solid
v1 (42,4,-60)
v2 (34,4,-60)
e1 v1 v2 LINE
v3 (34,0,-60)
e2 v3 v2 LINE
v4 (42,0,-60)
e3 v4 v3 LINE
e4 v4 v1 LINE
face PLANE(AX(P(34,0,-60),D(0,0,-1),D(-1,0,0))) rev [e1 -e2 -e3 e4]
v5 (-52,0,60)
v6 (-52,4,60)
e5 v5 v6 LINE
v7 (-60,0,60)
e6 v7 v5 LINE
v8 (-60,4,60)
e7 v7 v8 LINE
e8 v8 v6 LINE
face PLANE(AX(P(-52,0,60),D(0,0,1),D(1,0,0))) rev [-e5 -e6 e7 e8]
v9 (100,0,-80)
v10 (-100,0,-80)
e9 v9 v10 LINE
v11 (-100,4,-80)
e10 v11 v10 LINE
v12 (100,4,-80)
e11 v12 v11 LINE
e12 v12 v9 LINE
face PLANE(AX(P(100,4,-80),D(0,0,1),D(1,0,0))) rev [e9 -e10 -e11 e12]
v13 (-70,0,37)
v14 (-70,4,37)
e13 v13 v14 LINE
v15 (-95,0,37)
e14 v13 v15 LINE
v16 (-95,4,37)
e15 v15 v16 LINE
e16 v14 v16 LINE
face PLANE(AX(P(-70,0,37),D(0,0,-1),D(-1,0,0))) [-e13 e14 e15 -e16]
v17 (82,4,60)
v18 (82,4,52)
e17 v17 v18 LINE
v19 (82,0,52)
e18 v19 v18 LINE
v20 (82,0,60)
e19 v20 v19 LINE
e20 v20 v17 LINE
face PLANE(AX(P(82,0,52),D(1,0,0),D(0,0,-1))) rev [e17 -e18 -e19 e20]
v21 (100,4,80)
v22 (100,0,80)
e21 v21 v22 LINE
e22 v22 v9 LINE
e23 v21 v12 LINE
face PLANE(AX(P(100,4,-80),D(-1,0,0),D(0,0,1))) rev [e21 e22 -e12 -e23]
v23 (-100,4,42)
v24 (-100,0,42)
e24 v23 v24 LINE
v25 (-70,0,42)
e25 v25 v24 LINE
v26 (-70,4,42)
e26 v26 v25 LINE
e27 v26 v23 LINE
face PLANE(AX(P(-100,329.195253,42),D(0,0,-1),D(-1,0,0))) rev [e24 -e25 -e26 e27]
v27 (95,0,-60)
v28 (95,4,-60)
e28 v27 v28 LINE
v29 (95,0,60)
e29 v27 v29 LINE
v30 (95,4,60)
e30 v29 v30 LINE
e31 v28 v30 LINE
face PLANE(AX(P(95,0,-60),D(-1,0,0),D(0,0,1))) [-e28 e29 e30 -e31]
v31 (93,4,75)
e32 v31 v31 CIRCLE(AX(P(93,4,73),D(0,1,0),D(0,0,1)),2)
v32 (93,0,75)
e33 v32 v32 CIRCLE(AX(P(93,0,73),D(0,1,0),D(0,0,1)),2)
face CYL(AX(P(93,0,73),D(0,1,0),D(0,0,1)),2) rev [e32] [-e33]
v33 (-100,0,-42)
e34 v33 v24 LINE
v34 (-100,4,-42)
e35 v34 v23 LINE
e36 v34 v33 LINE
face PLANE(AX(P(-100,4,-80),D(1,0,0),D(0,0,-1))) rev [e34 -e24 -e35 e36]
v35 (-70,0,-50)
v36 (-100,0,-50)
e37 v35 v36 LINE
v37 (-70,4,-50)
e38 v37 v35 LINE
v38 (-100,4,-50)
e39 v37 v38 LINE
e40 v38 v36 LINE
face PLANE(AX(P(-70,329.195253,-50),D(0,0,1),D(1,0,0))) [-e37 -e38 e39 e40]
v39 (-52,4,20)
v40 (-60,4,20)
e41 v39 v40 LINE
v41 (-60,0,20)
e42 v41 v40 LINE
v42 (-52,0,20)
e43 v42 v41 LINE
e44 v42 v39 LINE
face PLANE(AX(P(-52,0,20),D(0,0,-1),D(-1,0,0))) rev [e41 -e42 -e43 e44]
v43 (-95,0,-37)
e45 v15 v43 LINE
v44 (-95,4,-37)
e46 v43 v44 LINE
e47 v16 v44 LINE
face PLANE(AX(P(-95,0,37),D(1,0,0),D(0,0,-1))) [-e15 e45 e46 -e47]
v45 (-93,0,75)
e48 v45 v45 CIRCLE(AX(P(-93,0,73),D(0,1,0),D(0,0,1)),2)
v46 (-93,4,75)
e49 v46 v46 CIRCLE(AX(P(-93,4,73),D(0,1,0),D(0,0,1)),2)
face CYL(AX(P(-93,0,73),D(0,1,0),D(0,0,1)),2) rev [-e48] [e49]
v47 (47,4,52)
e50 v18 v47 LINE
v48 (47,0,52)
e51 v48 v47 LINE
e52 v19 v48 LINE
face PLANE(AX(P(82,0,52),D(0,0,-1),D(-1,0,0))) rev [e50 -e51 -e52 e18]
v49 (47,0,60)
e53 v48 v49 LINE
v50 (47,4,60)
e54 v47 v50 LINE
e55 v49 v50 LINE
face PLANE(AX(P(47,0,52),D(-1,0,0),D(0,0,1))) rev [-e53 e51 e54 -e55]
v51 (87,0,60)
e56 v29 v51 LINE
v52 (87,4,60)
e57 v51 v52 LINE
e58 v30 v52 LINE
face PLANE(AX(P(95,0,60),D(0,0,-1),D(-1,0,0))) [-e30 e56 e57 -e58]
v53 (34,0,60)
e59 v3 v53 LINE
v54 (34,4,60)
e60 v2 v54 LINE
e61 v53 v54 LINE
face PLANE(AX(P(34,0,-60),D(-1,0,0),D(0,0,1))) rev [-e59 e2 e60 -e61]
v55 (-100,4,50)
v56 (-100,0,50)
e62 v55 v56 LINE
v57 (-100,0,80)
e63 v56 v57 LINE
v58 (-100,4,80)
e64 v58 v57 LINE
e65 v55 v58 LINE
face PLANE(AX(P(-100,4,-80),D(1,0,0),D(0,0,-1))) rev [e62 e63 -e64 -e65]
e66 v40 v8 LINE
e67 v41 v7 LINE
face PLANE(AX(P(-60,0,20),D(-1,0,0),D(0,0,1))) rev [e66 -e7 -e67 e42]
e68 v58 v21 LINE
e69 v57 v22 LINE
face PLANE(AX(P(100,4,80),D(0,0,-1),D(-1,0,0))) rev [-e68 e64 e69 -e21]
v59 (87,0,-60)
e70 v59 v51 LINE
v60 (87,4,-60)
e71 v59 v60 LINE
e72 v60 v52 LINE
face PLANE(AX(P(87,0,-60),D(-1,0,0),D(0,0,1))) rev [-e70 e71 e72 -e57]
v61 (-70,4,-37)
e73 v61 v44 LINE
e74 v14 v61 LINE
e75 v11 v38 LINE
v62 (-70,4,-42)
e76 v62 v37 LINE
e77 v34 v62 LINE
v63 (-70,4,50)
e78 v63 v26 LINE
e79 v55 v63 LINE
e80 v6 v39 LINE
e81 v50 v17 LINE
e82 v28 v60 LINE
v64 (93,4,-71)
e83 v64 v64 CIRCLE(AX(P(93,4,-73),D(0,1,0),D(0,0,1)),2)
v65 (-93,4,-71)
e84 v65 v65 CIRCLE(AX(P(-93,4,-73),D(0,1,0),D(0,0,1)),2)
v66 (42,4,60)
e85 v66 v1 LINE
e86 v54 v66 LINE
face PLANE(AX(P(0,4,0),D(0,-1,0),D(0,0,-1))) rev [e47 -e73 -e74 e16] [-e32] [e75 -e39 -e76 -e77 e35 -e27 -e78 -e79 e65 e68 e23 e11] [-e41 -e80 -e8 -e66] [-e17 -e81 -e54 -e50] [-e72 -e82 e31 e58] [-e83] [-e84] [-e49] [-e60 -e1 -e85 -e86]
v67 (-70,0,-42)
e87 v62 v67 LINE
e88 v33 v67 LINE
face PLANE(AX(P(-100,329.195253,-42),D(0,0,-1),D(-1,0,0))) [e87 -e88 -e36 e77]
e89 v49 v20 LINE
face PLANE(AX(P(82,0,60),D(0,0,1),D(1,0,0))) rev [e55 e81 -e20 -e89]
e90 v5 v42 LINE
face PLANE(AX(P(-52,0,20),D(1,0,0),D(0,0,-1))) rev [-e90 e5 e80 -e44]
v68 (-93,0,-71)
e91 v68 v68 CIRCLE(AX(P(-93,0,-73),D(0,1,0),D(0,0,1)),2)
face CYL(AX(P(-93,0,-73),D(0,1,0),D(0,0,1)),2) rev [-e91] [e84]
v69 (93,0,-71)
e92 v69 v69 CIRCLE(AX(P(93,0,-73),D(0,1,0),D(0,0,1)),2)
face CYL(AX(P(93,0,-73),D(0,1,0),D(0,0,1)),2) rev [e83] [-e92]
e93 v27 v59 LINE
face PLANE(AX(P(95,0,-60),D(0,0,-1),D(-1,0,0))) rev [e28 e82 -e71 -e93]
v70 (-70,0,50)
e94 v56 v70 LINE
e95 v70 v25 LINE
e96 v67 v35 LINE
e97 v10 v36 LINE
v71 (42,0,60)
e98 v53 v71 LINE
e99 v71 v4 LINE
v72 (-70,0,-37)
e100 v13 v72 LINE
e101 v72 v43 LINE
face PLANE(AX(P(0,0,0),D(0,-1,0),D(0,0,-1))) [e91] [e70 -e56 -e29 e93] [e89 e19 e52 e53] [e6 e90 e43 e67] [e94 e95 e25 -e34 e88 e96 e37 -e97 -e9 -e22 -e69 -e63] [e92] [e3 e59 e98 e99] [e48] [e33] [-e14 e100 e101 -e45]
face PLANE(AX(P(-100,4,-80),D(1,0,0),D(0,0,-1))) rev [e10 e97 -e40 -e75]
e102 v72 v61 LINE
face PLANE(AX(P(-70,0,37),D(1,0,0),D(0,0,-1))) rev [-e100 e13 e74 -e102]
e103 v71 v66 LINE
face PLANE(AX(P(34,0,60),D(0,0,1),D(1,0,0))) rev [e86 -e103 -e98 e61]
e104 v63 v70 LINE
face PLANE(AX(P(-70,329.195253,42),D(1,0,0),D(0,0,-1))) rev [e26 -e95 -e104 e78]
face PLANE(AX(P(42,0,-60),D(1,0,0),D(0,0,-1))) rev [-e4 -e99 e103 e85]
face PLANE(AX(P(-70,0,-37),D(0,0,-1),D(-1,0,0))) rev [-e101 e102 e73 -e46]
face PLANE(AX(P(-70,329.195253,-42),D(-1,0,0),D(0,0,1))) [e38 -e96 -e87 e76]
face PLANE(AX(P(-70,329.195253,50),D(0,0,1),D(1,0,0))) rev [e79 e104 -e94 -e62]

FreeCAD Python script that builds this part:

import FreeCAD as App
import Part
import Sketcher

V = App.Vector


def add_polygon(sketch, points):
    """Adds a closed chain of lines whose ends are joined by coincident constraints."""
    first, n = sketch.GeometryCount, len(points)
    for a, b in zip(points, points[1:] + points[:1]):
        sketch.addGeometry(Part.LineSegment(App.Vector(*a, 0), App.Vector(*b, 0)), False)
    for i in range(n):
        sketch.addConstraint(Sketcher.Constraint("Coincident", first + i, 2, first + (i + 1) % n, 1))

doc = App.newDocument("Part")
body = doc.addObject("PartDesign::Body", "Body")

# Sketch on XZ plane
sketch1 = body.newObject("Sketcher::SketchObject", "Sketch")
sketch1.AttachmentSupport = (doc.getObject("XZ_Plane"), [""])
sketch1.MapMode = "FlatFace"
add_polygon(sketch1, [(-100, -80), (-100, 80), (100, 80), (100, -80)])  # lines 0-3
sketch1.addConstraint(Sketcher.Constraint("Vertical", 0))
sketch1.addConstraint(Sketcher.Constraint("Horizontal", 1))
sketch1.addConstraint(Sketcher.Constraint("Vertical", 2))
sketch1.addConstraint(Sketcher.Constraint("Horizontal", 3))
sketch1.addConstraint(Sketcher.Constraint("Symmetric", 0, 2, 2, 2, -1, 1))
sketch1.addConstraint(Sketcher.Constraint("DistanceX", 1, 1, 1, 2, 200.0))
sketch1.addConstraint(Sketcher.Constraint("DistanceY", 0, 1, 0, 2, 160.0))
pad1 = body.newObject("PartDesign::Pad", "Pad")
pad1.Profile = sketch1
pad1.Length = 4
pad1.Reversed = True

# Sketch on XZ plane
sketch2 = body.newObject("Sketcher::SketchObject", "Sketch001")
sketch2.AttachmentSupport = (doc.getObject("XZ_Plane"), [""])
sketch2.MapMode = "FlatFace"
sketch2.AttachmentOffset = App.Placement(V(0, 0, -4), App.Rotation())
sketch2.addGeometry(Part.Circle(V(-93, -73, 0), V(0, 0, 1), 2), False)
sketch2.addGeometry(Part.Circle(V(93, -73, 0), V(0, 0, 1), 2), False)
sketch2.addGeometry(Part.Circle(V(-93, 73, 0), V(0, 0, 1), 2), False)
sketch2.addGeometry(Part.Circle(V(93, 73, 0), V(0, 0, 1), 2), False)
sketch2.addConstraint(Sketcher.Constraint("Equal", 0, 1))
sketch2.addConstraint(Sketcher.Constraint("Equal", 1, 2))
sketch2.addConstraint(Sketcher.Constraint("Equal", 2, 3))
sketch2.addConstraint(Sketcher.Constraint("Symmetric", 1, 3, 2, 3, -1, 1))
sketch2.addConstraint(Sketcher.Constraint("Symmetric", 0, 3, 3, 3, -1, 1))
sketch2.addConstraint(Sketcher.Constraint("Symmetric", 0, 3, 1, 3, -2))
sketch2.addConstraint(Sketcher.Constraint("Diameter", 0, 4.0))
sketch2.addConstraint(Sketcher.Constraint("DistanceX", 0, 3, -1, 1, 93.0))
sketch2.addConstraint(Sketcher.Constraint("DistanceY", 0, 3, -1, 1, 73.0))
pocket1 = body.newObject("PartDesign::Pocket", "Pocket")
pocket1.Profile = sketch2
pocket1.Type = "ThroughAll"
pocket1.Reversed = True

# Sketch on XZ plane
sketch3 = body.newObject("Sketcher::SketchObject", "Sketch002")
sketch3.AttachmentSupport = (doc.getObject("XZ_Plane"), [""])
sketch3.MapMode = "FlatFace"
sketch3.AttachmentOffset = App.Placement(V(0, 0, -4), App.Rotation())
add_polygon(sketch3, [(-100, -50), (-100, -42), (-70, -42), (-70, -50)])  # lines 0-3
sketch3.addConstraint(Sketcher.Constraint("Vertical", 0))
sketch3.addConstraint(Sketcher.Constraint("Horizontal", 1))
sketch3.addConstraint(Sketcher.Constraint("Vertical", 2))
sketch3.addConstraint(Sketcher.Constraint("Horizontal", 3))
sketch3.addConstraint(Sketcher.Constraint("DistanceX", 1, 1, 1, 2, 30.0))
sketch3.addConstraint(Sketcher.Constraint("DistanceY", 0, 1, 0, 2, 8.0))
sketch3.addConstraint(Sketcher.Constraint("DistanceX", 0, 2, -1, 1, 100.0))
sketch3.addConstraint(Sketcher.Constraint("DistanceY", 0, 2, -1, 1, 42.0))
pocket2 = body.newObject("PartDesign::Pocket", "Pocket001")
pocket2.Profile = sketch3
pocket2.Type = "ThroughAll"
pocket2.Midplane = True

# Sketch on XZ plane
sketch4 = body.newObject("Sketcher::SketchObject", "Sketch003")
sketch4.AttachmentSupport = (doc.getObject("XZ_Plane"), [""])
sketch4.MapMode = "FlatFace"
sketch4.AttachmentOffset = App.Placement(V(0, 0, -4), App.Rotation())
add_polygon(sketch4, [(-95, -37), (-95, 37), (-70, 37), (-70, -37)])  # lines 0-3
sketch4.addConstraint(Sketcher.Constraint("Vertical", 0))
sketch4.addConstraint(Sketcher.Constraint("Horizontal", 1))
sketch4.addConstraint(Sketcher.Constraint("Vertical", 2))
sketch4.addConstraint(Sketcher.Constraint("Horizontal", 3))
sketch4.addConstraint(Sketcher.Constraint("DistanceX", 1, 1, 1, 2, 25.0))
sketch4.addConstraint(Sketcher.Constraint("DistanceY", 0, 1, 0, 2, 74.0))
sketch4.addConstraint(Sketcher.Constraint("DistanceX", 0, 2, -1, 1, 95.0))
sketch4.addConstraint(Sketcher.Constraint("DistanceY", -1, 1, 0, 2, 37.0))
pocket3 = body.newObject("PartDesign::Pocket", "Pocket002")
pocket3.Profile = sketch4
pocket3.Type = "ThroughAll"
pocket3.Reversed = True

# Sketch on XZ plane
sketch5 = body.newObject("Sketcher::SketchObject", "Sketch004")
sketch5.AttachmentSupport = (doc.getObject("XZ_Plane"), [""])
sketch5.MapMode = "FlatFace"
sketch5.AttachmentOffset = App.Placement(V(0, 0, -4), App.Rotation())
add_polygon(sketch5, [(-70, 42), (-1561, 42), (-1561, 50), (-70, 50)])  # lines 0-3
sketch5.addConstraint(Sketcher.Constraint("Horizontal", 0))
sketch5.addConstraint(Sketcher.Constraint("Vertical", 1))
sketch5.addConstraint(Sketcher.Constraint("Horizontal", 2))
sketch5.addConstraint(Sketcher.Constraint("Vertical", 3))
sketch5.addConstraint(Sketcher.Constraint("DistanceY", 1, 1, 1, 2, 8.0))
sketch5.addConstraint(Sketcher.Constraint("DistanceY", -1, 1, 0, 2, 42.0))
sketch5.addConstraint(Sketcher.Constraint("DistanceX", 2, 2, -1, 1, 70.0))
sketch5.addConstraint(Sketcher.Constraint("DistanceX", 0, 2, 0, 1, 1491.223253))
pocket4 = body.newObject("PartDesign::Pocket", "Pocket003")
pocket4.Profile = sketch5
pocket4.Type = "ThroughAll"
pocket4.Midplane = True

# Sketch on XZ plane
sketch6 = body.newObject("Sketcher::SketchObject", "Sketch005")
sketch6.AttachmentSupport = (doc.getObject("XZ_Plane"), [""])
sketch6.MapMode = "FlatFace"
sketch6.AttachmentOffset = App.Placement(V(0, 0, -4), App.Rotation())
add_polygon(sketch6, [(87, -60), (87, 60), (95, 60), (95, -60)])  # lines 0-3
sketch6.addConstraint(Sketcher.Constraint("Vertical", 0))
sketch6.addConstraint(Sketcher.Constraint("Horizontal", 1))
sketch6.addConstraint(Sketcher.Constraint("Vertical", 2))
sketch6.addConstraint(Sketcher.Constraint("Horizontal", 3))
sketch6.addConstraint(Sketcher.Constraint("DistanceX", 1, 1, 1, 2, 8.0))
sketch6.addConstraint(Sketcher.Constraint("DistanceY", 0, 1, 0, 2, 120.0))
sketch6.addConstraint(Sketcher.Constraint("DistanceX", -1, 1, 0, 2, 87.0))
sketch6.addConstraint(Sketcher.Constraint("DistanceY", -1, 1, 0, 2, 60.0))
pocket5 = body.newObject("PartDesign::Pocket", "Pocket004")
pocket5.Profile = sketch6
pocket5.Type = "ThroughAll"
pocket5.Reversed = True

# Sketch on XZ plane
sketch7 = body.newObject("Sketcher::SketchObject", "Sketch006")
sketch7.AttachmentSupport = (doc.getObject("XZ_Plane"), [""])
sketch7.MapMode = "FlatFace"
sketch7.AttachmentOffset = App.Placement(V(0, 0, -4), App.Rotation())
add_polygon(sketch7, [(34, -60), (34, 60), (42, 60), (42, -60)])  # lines 0-3
sketch7.addConstraint(Sketcher.Constraint("Vertical", 0))
sketch7.addConstraint(Sketcher.Constraint("Horizontal", 1))
sketch7.addConstraint(Sketcher.Constraint("Vertical", 2))
sketch7.addConstraint(Sketcher.Constraint("Horizontal", 3))
sketch7.addConstraint(Sketcher.Constraint("DistanceX", 1, 1, 1, 2, 8.0))
sketch7.addConstraint(Sketcher.Constraint("DistanceY", 0, 1, 0, 2, 120.0))
sketch7.addConstraint(Sketcher.Constraint("DistanceX", -1, 1, 0, 2, 34.0))
sketch7.addConstraint(Sketcher.Constraint("DistanceY", -1, 1, 0, 2, 60.0))
pocket6 = body.newObject("PartDesign::Pocket", "Pocket005")
pocket6.Profile = sketch7
pocket6.Type = "ThroughAll"
pocket6.Reversed = True

# Sketch on XZ plane
sketch8 = body.newObject("Sketcher::SketchObject", "Sketch007")
sketch8.AttachmentSupport = (doc.getObject("XZ_Plane"), [""])
sketch8.MapMode = "FlatFace"
sketch8.AttachmentOffset = App.Placement(V(0, 0, -4), App.Rotation())
add_polygon(sketch8, [(-60, 20), (-60, 60), (-52, 60), (-52, 20)])  # lines 0-3
sketch8.addConstraint(Sketcher.Constraint("Vertical", 0))
sketch8.addConstraint(Sketcher.Constraint("Horizontal", 1))
sketch8.addConstraint(Sketcher.Constraint("Vertical", 2))
sketch8.addConstraint(Sketcher.Constraint("Horizontal", 3))
sketch8.addConstraint(Sketcher.Constraint("DistanceX", 1, 1, 1, 2, 8.0))
sketch8.addConstraint(Sketcher.Constraint("DistanceY", 0, 1, 0, 2, 40.0))
sketch8.addConstraint(Sketcher.Constraint("DistanceX", 0, 2, -1, 1, 60.0))
sketch8.addConstraint(Sketcher.Constraint("DistanceY", -1, 1, 0, 2, 60.0))
pocket7 = body.newObject("PartDesign::Pocket", "Pocket006")
pocket7.Profile = sketch8
pocket7.Type = "ThroughAll"
pocket7.Reversed = True

# Sketch on XZ plane
sketch9 = body.newObject("Sketcher::SketchObject", "Sketch008")
sketch9.AttachmentSupport = (doc.getObject("XZ_Plane"), [""])
sketch9.MapMode = "FlatFace"
sketch9.AttachmentOffset = App.Placement(V(0, 0, -4), App.Rotation())
add_polygon(sketch9, [(47, 52), (47, 60), (82, 60), (82, 52)])  # lines 0-3
sketch9.addConstraint(Sketcher.Constraint("Vertical", 0))
sketch9.addConstraint(Sketcher.Constraint("Horizontal", 1))
sketch9.addConstraint(Sketcher.Constraint("Vertical", 2))
sketch9.addConstraint(Sketcher.Constraint("Horizontal", 3))
sketch9.addConstraint(Sketcher.Constraint("DistanceX", 1, 1, 1, 2, 35.0))
sketch9.addConstraint(Sketcher.Constraint("DistanceY", 0, 1, 0, 2, 8.0))
sketch9.addConstraint(Sketcher.Constraint("DistanceX", -1, 1, 0, 2, 47.0))
sketch9.addConstraint(Sketcher.Constraint("DistanceY", -1, 1, 0, 2, 60.0))
pocket8 = body.newObject("PartDesign::Pocket", "Pocket007")
pocket8.Profile = sketch9
pocket8.Type = "ThroughAll"
pocket8.Reversed = True

doc.recompute()
